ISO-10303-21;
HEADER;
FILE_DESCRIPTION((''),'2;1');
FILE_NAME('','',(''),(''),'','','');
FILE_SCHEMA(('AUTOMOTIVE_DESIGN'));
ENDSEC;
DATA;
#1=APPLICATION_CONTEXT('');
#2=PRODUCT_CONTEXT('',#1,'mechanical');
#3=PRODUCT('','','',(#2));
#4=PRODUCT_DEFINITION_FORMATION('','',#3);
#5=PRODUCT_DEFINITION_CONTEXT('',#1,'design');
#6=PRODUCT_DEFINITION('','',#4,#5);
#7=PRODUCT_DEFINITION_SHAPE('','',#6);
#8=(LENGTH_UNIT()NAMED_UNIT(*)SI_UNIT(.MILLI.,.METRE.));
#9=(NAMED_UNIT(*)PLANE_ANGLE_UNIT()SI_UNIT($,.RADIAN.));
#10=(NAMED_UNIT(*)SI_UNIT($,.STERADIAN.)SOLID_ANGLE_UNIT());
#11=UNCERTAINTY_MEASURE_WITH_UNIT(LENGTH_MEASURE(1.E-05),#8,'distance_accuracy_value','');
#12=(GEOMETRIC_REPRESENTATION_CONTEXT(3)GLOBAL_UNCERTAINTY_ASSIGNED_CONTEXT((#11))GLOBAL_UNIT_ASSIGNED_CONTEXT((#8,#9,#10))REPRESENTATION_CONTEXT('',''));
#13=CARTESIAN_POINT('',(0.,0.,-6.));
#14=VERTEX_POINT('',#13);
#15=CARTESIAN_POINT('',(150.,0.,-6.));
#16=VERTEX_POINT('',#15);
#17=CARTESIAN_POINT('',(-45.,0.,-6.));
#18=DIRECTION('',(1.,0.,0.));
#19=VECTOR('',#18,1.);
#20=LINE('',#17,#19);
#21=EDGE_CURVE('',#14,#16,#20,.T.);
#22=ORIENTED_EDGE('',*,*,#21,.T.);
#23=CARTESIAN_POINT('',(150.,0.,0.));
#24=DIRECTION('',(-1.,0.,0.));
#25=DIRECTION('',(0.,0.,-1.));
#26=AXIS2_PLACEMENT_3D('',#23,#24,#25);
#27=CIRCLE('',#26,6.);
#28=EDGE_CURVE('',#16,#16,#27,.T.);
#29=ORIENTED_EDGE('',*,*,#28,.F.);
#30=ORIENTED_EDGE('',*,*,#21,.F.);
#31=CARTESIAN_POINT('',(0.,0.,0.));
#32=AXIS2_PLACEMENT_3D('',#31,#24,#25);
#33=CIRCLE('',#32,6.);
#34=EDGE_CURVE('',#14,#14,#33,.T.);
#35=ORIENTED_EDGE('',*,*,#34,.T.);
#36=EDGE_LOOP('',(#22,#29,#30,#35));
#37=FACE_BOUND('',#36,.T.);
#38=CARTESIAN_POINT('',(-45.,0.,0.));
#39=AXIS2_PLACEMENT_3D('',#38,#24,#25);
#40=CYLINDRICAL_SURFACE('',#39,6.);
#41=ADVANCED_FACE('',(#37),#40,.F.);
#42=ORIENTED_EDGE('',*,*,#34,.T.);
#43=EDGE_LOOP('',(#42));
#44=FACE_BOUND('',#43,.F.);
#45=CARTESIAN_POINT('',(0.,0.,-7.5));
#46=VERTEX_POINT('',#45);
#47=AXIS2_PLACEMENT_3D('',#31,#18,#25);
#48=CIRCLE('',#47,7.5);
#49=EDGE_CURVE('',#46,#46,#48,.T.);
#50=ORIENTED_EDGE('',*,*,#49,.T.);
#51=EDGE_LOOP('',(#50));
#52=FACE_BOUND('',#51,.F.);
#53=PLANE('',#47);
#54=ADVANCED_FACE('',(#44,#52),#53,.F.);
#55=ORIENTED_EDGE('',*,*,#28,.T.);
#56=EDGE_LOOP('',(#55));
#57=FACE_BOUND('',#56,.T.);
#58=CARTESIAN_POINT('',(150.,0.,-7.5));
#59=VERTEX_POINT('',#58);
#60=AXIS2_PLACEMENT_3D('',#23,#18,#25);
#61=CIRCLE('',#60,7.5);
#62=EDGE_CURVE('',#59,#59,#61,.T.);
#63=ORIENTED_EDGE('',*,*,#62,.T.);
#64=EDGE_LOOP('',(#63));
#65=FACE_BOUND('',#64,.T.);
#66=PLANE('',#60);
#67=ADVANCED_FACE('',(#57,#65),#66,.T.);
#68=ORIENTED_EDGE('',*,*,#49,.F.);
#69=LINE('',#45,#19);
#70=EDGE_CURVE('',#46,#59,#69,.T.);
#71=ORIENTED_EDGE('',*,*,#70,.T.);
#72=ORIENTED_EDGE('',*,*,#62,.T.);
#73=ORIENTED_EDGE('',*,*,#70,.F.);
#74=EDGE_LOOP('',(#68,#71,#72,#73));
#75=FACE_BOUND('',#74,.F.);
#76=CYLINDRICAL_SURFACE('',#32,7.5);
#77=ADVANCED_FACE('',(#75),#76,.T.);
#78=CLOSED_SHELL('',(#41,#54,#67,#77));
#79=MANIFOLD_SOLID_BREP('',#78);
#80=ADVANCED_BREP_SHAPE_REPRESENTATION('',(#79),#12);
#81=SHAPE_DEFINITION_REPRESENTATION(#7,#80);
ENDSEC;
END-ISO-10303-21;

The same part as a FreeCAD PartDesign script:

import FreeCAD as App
import Part
import Sketcher
from FreeCAD import Vector

doc = App.newDocument("Part")
body = doc.addObject("PartDesign::Body", "Body")

sketch1 = doc.addObject("Sketcher::SketchObject", "Sketch")
body.addObject(sketch1)
sketch1.AttachmentSupport = (doc.XY_Plane, [""])
sketch1.MapMode = "FlatFace"
sketch1.addGeometry(Part.Circle(Vector(0, 0, 0), Vector(0, 0, 1), 6), False)
sketch1.addConstraint([
    Sketcher.Constraint("Coincident", 0, 3, -1, 1),
    Sketcher.Constraint("Diameter", 0, 12.0),
])
pad1 = doc.addObject("PartDesign::Pad", "Pad")
body.addObject(pad1)
pad1.Profile = sketch1
pad1.Length = 236
body2 = doc.addObject("PartDesign::Body", "Body001")
doc.recompute()

body.Placement = App.Placement(Vector(0, 0, 0), App.Rotation(Vector(0, 1, 0), 90))
boolean = doc.addObject("PartDesign::Boolean", "Boolean")
body2.addObject(boolean)
boolean.Type = "Fuse"
boolean.addObjects([body])
body3 = doc.addObject("PartDesign::Body", "Body002")
doc.recompute()

body2.Placement = App.Placement(Vector(-45, 0, 0), App.Rotation(Vector(0, 0, 1), 0))
boolean2 = doc.addObject("PartDesign::Boolean", "Boolean001")
body3.addObject(boolean2)
boolean2.Type = "Fuse"
boolean2.addObjects([body2])
body4 = doc.addObject("PartDesign::Body", "Body003")

sketch2 = doc.addObject("Sketcher::SketchObject", "Sketch001")
body4.addObject(sketch2)
sketch2.AttachmentSupport = (doc.getObject("XY_Plane003"), [""])
sketch2.MapMode = "FlatFace"
sketch2.addGeometry(Part.Circle(Vector(0, 0, 0), Vector(0, 0, 1), 6), False)
sketch2.addConstraint([
    Sketcher.Constraint("Coincident", 0, 3, -1, 1),
    Sketcher.Constraint("Diameter", 0, 11.0),
])
pad2 = doc.addObject("PartDesign::Pad", "Pad001")
body4.addObject(pad2)
pad2.Profile = sketch2
pad2.Length = 150
body5 = doc.addObject("PartDesign::Body", "Body004")
doc.recompute()

body4.Placement = App.Placement(Vector(0, 0, 0), App.Rotation(Vector(0, 1, 0), 90))
boolean3 = doc.addObject("PartDesign::Boolean", "Boolean002")
body5.addObject(boolean3)
boolean3.Type = "Fuse"
boolean3.addObjects([body4])
body6 = doc.addObject("PartDesign::Body", "Body005")

sketch3 = doc.addObject("Sketcher::SketchObject", "Sketch002")
body6.addObject(sketch3)
sketch3.AttachmentSupport = (doc.getObject("XY_Plane005"), [""])
sketch3.MapMode = "FlatFace"
sketch3.addGeometry(Part.Circle(Vector(0, 0, 0), Vector(0, 0, 1), 8), False)
sketch3.addConstraint([
    Sketcher.Constraint("Coincident", 0, 3, -1, 1),
    Sketcher.Constraint("Diameter", 0, 15.0),
])
pad3 = doc.addObject("PartDesign::Pad", "Pad002")
body6.addObject(pad3)
pad3.Profile = sketch3
pad3.Length = 150
body7 = doc.addObject("PartDesign::Body", "Body006")
doc.recompute()

body6.Placement = App.Placement(Vector(0, 0, 0), App.Rotation(Vector(0, 1, 0), 90))
boolean4 = doc.addObject("PartDesign::Boolean", "Boolean003")
body7.addObject(boolean4)
boolean4.Type = "Fuse"
boolean4.addObjects([body6])
doc.recompute()

boolean5 = doc.addObject("PartDesign::Boolean", "Boolean004")
body7.addObject(boolean5)
boolean5.Type = "Cut"
boolean5.addObjects([body5])
doc.recompute()

boolean6 = doc.addObject("PartDesign::Boolean", "Boolean005")
body7.addObject(boolean6)
boolean6.Type = "Cut"
boolean6.addObjects([body3])

doc.recompute()
